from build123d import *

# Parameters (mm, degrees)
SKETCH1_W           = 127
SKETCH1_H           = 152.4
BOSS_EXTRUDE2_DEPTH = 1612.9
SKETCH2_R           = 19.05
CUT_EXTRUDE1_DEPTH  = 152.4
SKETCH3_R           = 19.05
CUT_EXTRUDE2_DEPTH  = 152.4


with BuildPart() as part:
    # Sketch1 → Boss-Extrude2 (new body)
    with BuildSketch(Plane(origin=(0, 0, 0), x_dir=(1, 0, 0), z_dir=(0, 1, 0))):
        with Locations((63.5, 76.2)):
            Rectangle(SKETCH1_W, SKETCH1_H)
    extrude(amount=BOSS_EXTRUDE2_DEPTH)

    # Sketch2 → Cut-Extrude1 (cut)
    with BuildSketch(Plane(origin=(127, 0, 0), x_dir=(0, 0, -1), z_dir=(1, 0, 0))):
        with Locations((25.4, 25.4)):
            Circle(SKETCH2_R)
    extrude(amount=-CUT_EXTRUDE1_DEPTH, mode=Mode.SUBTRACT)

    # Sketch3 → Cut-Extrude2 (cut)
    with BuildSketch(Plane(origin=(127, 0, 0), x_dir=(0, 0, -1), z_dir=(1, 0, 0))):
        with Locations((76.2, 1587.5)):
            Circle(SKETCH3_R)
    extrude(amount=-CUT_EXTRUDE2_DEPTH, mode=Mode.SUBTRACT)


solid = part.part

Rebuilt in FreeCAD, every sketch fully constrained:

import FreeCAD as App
import Part
import Sketcher
from FreeCAD import Vector
Q = App.Units.Quantity

doc = App.newDocument("Part")
params = doc.addObject("Spreadsheet::Sheet", "Params")
for row, (alias, value) in enumerate([
    ("sketch1_width", "5 in"),
    ("sketch1_height", "6 in"),
    ("pad1_length", "63.5 in"),
    ("sketch2_diameter", "1.5 in"),
    ("pocket1_length", "6 in"),
    ("sketch3_diameter", "1.5 in"),
    ("pocket2_length", "6 in"),
], start=1):
    params.set(f"A{row}", alias)
    params.set(f"B{row}", "=" + value)
    params.setAlias(f"B{row}", alias)

body = doc.addObject("PartDesign::Body", "Body")

sketch1 = doc.addObject("Sketcher::SketchObject", "Sketch")
body.addObject(sketch1)
sketch1.AttachmentSupport = (doc.XZ_Plane, [""])
sketch1.MapMode = "FlatFace"
sketch1.addGeometry([
    Part.LineSegment(Vector(0, -152.4, 0), Vector(0, 0, 0)),
    Part.LineSegment(Vector(0, 0, 0), Vector(127, 0, 0)),
    Part.LineSegment(Vector(127, 0, 0), Vector(127, -152.4, 0)),
    Part.LineSegment(Vector(127, -152.4, 0), Vector(0, -152.4, 0)),
], False)
sketch1.addConstraint([
    Sketcher.Constraint("Coincident", 0, 2, 1, 1),
    Sketcher.Constraint("Coincident", 1, 2, 2, 1),
    Sketcher.Constraint("Coincident", 2, 2, 3, 1),
    Sketcher.Constraint("Coincident", 3, 2, 0, 1),
    Sketcher.Constraint("Vertical", 0),
    Sketcher.Constraint("Horizontal", 1),
    Sketcher.Constraint("Vertical", 2),
    Sketcher.Constraint("Horizontal", 3),
    Sketcher.Constraint("Coincident", 0, 2, -1, 1),
    Sketcher.Constraint("DistanceX", 1, 1, 1, 2, Q("5 in")),
    Sketcher.Constraint("DistanceY", 0, 1, 0, 2, Q("6 in")),
])
sketch1.setExpression("Constraints[9]", "Params.sketch1_width")
sketch1.setExpression("Constraints[10]", "Params.sketch1_height")
pad1 = doc.addObject("PartDesign::Pad", "Pad")
body.addObject(pad1)
pad1.Profile = sketch1
pad1.setExpression("Length", "Params.pad1_length")
pad1.Reversed = True

sketch2 = doc.addObject("Sketcher::SketchObject", "Sketch001")
body.addObject(sketch2)
sketch2.AttachmentSupport = (doc.YZ_Plane, [""])
sketch2.MapMode = "FlatFace"
sketch2.AttachmentOffset = App.Placement(Vector(0, 0, 5 * 25.4), App.Rotation())
sketch2.addGeometry(Part.Circle(Vector(25.4, -25.4, 0), Vector(0, 0, 1), 19.05), False)
sketch2.addConstraint([
    Sketcher.Constraint("Diameter", 0, Q("1.5 in")),
    Sketcher.Constraint("DistanceX", -1, 1, 0, 3, Q("1 in")),
    Sketcher.Constraint("DistanceY", 0, 3, -1, 1, Q("1 in")),
])
sketch2.setExpression("Constraints[0]", "Params.sketch2_diameter")
pocket1 = doc.addObject("PartDesign::Pocket", "Pocket")
body.addObject(pocket1)
pocket1.Profile = sketch2
pocket1.setExpression("Length", "Params.pocket1_length")

sketch3 = doc.addObject("Sketcher::SketchObject", "Sketch002")
body.addObject(sketch3)
sketch3.AttachmentSupport = (doc.YZ_Plane, [""])
sketch3.MapMode = "FlatFace"
sketch3.AttachmentOffset = App.Placement(Vector(0, 0, 5 * 25.4), App.Rotation())
sketch3.addGeometry(Part.Circle(Vector(1587.5, -76.2, 0), Vector(0, 0, 1), 19.05), False)
sketch3.addConstraint([
    Sketcher.Constraint("Diameter", 0, Q("1.5 in")),
    Sketcher.Constraint("DistanceY", 0, 3, -1, 1, Q("3 in")),
    Sketcher.Constraint("DistanceX", -1, 1, 0, 3, Q("62.5 in")),
])
sketch3.setExpression("Constraints[0]", "Params.sketch3_diameter")
pocket2 = doc.addObject("PartDesign::Pocket", "Pocket001")
body.addObject(pocket2)
pocket2.Profile = sketch3
pocket2.setExpression("Length", "Params.pocket2_length")

doc.recompute()
